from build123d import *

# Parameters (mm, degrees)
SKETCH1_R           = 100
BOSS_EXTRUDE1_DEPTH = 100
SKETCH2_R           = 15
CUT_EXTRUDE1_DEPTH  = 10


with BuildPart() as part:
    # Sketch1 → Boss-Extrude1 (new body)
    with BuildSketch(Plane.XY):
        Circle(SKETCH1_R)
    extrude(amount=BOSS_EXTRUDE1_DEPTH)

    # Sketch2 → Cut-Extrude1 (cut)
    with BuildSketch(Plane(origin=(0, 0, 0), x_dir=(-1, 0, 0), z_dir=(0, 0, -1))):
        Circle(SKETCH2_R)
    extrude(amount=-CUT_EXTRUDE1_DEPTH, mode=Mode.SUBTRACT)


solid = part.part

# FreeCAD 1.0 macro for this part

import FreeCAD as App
import Part
import Sketcher
Q = App.Units.Quantity

doc = App.newDocument("Part")
params = doc.addObject("Spreadsheet::Sheet", "Params")
for row, (alias, value) in enumerate([
    ("sketch1_diameter", "200 mm"),
    ("pad1_length", "100 mm"),
    ("sketch2_diameter", "30 mm"),
    ("pocket1_length", "10 mm"),
], start=1):
    params.set(f"A{row}", alias)
    params.set(f"B{row}", "=" + value)
    params.setAlias(f"B{row}", alias)

body = doc.addObject("PartDesign::Body", "Body")

# Sketch on XY plane
sketch1 = body.newObject("Sketcher::SketchObject", "Sketch")
sketch1.AttachmentSupport = (doc.getObject("XY_Plane"), [""])
sketch1.MapMode = "FlatFace"
sketch1.addGeometry(Part.Circle(App.Vector(0, 0, 0), App.Vector(0, 0, 1), 100), False)
sketch1.addConstraint([
    Sketcher.Constraint("Coincident", 0, 3, -1, 1),
    Sketcher.Constraint("Diameter", 0, Q("200 mm")),
])
sketch1.setExpression("Constraints[1]", "Params.sketch1_diameter")
pad1 = body.newObject("PartDesign::Pad", "Pad")
pad1.Profile = sketch1
pad1.setExpression("Length", "Params.pad1_length")

# Sketch on XY plane
sketch2 = body.newObject("Sketcher::SketchObject", "Sketch001")
sketch2.AttachmentSupport = (doc.getObject("XY_Plane"), [""])
sketch2.MapMode = "FlatFace"
sketch2.addGeometry(Part.Circle(App.Vector(0, 0, 0), App.Vector(0, 0, 1), 15), False)
sketch2.addConstraint([
    Sketcher.Constraint("Coincident", 0, 3, -1, 1),
    Sketcher.Constraint("Diameter", 0, Q("30 mm")),
])
sketch2.setExpression("Constraints[1]", "Params.sketch2_diameter")
pocket1 = body.newObject("PartDesign::Pocket", "Pocket")
pocket1.Profile = sketch2
pocket1.setExpression("Length", "Params.pocket1_length")
pocket1.Reversed = True

doc.recompute()
